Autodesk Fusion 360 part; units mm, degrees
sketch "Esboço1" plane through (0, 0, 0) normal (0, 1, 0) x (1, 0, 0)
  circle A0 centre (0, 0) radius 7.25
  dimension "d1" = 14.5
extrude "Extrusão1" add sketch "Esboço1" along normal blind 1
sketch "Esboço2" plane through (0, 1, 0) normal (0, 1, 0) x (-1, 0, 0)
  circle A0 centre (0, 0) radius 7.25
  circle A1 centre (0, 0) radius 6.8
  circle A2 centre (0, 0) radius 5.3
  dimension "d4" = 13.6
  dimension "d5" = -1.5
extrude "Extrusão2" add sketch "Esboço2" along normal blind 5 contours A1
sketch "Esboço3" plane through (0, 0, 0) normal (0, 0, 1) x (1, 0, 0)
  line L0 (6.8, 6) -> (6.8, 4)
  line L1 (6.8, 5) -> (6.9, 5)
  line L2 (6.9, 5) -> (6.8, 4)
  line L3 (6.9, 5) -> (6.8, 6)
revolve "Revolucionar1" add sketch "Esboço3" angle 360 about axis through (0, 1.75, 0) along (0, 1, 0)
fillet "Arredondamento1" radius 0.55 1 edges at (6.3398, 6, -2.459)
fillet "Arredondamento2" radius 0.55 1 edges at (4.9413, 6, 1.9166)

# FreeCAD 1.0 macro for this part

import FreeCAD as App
import Part
import Sketcher
from FreeCAD import Vector
Q = App.Units.Quantity


def edges_at(feature, points):
    """Names of the edges that pass closest to the given points."""
    edges = feature.Shape.Edges
    near = lambda p: min(range(len(edges)), key=lambda i: edges[i].distToShape(Part.Vertex(*p))[0])
    return sorted({f"Edge{near(p) + 1}" for p in points})


def add_polygon(sketch, points):
    """Adds a closed chain of lines whose ends are joined by coincident constraints."""
    first, n = sketch.GeometryCount, len(points)
    for a, b in zip(points, points[1:] + points[:1]):
        sketch.addGeometry(Part.LineSegment(App.Vector(*a, 0), App.Vector(*b, 0)), False)
    for i in range(n):
        sketch.addConstraint(Sketcher.Constraint("Coincident", first + i, 2, first + (i + 1) % n, 1))

doc = App.newDocument("Part")
params = doc.addObject("Spreadsheet::Sheet", "Params")
for row, (alias, value) in enumerate([
    ("sketch1_diameter", "14.5 mm"),
    ("pad1_length", "1 mm"),
    ("sketch2_diameter", "13.6 mm"),
    ("sketch2_diameter2", "10.6 mm"),
    ("pad2_length", "5 mm"),
    ("sketch3_height", "2 mm"),
    ("revolution_angle", "360 deg"),
    ("fillet_radius", "0.55 mm"),
    ("fillet2_radius", "0.55 mm"),
], start=1):
    params.set(f"A{row}", alias)
    params.set(f"B{row}", "=" + value)
    params.setAlias(f"B{row}", alias)

body = doc.addObject("PartDesign::Body", "Body")

# Sketch on XZ plane
sketch1 = body.newObject("Sketcher::SketchObject", "Sketch")
sketch1.AttachmentSupport = (doc.getObject("XZ_Plane"), [""])
sketch1.MapMode = "FlatFace"
sketch1.addGeometry(Part.Circle(Vector(0, 0, 0), Vector(0, 0, 1), 7.25), False)
sketch1.addConstraint(Sketcher.Constraint("Coincident", 0, 3, -1, 1))
sketch1.addConstraint(Sketcher.Constraint("Diameter", 0, Q("14.5 mm")))
sketch1.setExpression("Constraints[1]", "Params.sketch1_diameter")
pad1 = body.newObject("PartDesign::Pad", "Pad")
pad1.Profile = sketch1
pad1.setExpression("Length", "Params.pad1_length")
pad1.Reversed = True

# Sketch on XZ plane
sketch2 = body.newObject("Sketcher::SketchObject", "Sketch001")
sketch2.AttachmentSupport = (doc.getObject("XZ_Plane"), [""])
sketch2.MapMode = "FlatFace"
sketch2.AttachmentOffset = App.Placement(Vector(0, 0, -1), App.Rotation())
sketch2.addGeometry(Part.Circle(Vector(0, 0, 0), Vector(0, 0, 1), 6.8), False)
sketch2.addGeometry(Part.Circle(Vector(0, 0, 0), Vector(0, 0, 1), 5.3), False)
sketch2.addConstraint(Sketcher.Constraint("Coincident", 0, 3, -1, 1))
sketch2.addConstraint(Sketcher.Constraint("Coincident", 1, 3, -1, 1))
sketch2.addConstraint(Sketcher.Constraint("Diameter", 0, Q("13.6 mm")))
sketch2.addConstraint(Sketcher.Constraint("Diameter", 1, Q("10.6 mm")))
sketch2.setExpression("Constraints[2]", "Params.sketch2_diameter")
sketch2.setExpression("Constraints[3]", "Params.sketch2_diameter2")
pad2 = body.newObject("PartDesign::Pad", "Pad001")
pad2.Profile = sketch2
pad2.setExpression("Length", "Params.pad2_length")
pad2.Reversed = True

# Sketch on XY plane
sketch3 = body.newObject("Sketcher::SketchObject", "Sketch002")
sketch3.AttachmentSupport = (doc.getObject("XY_Plane"), [""])
sketch3.MapMode = "FlatFace"
add_polygon(sketch3, [(6.9, 5), (6.8, 6), (6.8, 4)])  # lines 0-2
sketch3.addConstraint(Sketcher.Constraint("Vertical", 1))
sketch3.addConstraint(Sketcher.Constraint("Equal", 0, 2))
sketch3.addConstraint(Sketcher.Constraint("DistanceY", 1, 2, 1, 1, Q("2 mm")))
sketch3.addConstraint(Sketcher.Constraint("DistanceY", -1, 1, 0, 2, Q("6 mm")))
sketch3.addConstraint(Sketcher.Constraint("DistanceX", -1, 1, 0, 2, Q("6.8 mm")))
sketch3.addConstraint(Sketcher.Constraint("DistanceX", -1, 1, 2, 2, Q("6.9 mm")))
sketch3.setExpression("Constraints[5]", "Params.sketch3_height")
revolution = body.newObject("PartDesign::Revolution", "Revolution")
revolution.Profile = sketch3
revolution.ReferenceAxis = (sketch3, ["V_Axis"])
revolution.setExpression("Angle", "Params.revolution_angle")
doc.recompute()

fillet = body.newObject("PartDesign::Fillet", "Fillet")
fillet.Base = (revolution, edges_at(revolution, [(6.34, 6, -2.459)]))
fillet.setExpression("Radius", "Params.fillet_radius")
doc.recompute()

fillet2 = body.newObject("PartDesign::Fillet", "Fillet001")
fillet2.Base = (fillet, edges_at(fillet, [(4.941, 6, 1.917)]))
fillet2.setExpression("Radius", "Params.fillet2_radius")

doc.recompute()
